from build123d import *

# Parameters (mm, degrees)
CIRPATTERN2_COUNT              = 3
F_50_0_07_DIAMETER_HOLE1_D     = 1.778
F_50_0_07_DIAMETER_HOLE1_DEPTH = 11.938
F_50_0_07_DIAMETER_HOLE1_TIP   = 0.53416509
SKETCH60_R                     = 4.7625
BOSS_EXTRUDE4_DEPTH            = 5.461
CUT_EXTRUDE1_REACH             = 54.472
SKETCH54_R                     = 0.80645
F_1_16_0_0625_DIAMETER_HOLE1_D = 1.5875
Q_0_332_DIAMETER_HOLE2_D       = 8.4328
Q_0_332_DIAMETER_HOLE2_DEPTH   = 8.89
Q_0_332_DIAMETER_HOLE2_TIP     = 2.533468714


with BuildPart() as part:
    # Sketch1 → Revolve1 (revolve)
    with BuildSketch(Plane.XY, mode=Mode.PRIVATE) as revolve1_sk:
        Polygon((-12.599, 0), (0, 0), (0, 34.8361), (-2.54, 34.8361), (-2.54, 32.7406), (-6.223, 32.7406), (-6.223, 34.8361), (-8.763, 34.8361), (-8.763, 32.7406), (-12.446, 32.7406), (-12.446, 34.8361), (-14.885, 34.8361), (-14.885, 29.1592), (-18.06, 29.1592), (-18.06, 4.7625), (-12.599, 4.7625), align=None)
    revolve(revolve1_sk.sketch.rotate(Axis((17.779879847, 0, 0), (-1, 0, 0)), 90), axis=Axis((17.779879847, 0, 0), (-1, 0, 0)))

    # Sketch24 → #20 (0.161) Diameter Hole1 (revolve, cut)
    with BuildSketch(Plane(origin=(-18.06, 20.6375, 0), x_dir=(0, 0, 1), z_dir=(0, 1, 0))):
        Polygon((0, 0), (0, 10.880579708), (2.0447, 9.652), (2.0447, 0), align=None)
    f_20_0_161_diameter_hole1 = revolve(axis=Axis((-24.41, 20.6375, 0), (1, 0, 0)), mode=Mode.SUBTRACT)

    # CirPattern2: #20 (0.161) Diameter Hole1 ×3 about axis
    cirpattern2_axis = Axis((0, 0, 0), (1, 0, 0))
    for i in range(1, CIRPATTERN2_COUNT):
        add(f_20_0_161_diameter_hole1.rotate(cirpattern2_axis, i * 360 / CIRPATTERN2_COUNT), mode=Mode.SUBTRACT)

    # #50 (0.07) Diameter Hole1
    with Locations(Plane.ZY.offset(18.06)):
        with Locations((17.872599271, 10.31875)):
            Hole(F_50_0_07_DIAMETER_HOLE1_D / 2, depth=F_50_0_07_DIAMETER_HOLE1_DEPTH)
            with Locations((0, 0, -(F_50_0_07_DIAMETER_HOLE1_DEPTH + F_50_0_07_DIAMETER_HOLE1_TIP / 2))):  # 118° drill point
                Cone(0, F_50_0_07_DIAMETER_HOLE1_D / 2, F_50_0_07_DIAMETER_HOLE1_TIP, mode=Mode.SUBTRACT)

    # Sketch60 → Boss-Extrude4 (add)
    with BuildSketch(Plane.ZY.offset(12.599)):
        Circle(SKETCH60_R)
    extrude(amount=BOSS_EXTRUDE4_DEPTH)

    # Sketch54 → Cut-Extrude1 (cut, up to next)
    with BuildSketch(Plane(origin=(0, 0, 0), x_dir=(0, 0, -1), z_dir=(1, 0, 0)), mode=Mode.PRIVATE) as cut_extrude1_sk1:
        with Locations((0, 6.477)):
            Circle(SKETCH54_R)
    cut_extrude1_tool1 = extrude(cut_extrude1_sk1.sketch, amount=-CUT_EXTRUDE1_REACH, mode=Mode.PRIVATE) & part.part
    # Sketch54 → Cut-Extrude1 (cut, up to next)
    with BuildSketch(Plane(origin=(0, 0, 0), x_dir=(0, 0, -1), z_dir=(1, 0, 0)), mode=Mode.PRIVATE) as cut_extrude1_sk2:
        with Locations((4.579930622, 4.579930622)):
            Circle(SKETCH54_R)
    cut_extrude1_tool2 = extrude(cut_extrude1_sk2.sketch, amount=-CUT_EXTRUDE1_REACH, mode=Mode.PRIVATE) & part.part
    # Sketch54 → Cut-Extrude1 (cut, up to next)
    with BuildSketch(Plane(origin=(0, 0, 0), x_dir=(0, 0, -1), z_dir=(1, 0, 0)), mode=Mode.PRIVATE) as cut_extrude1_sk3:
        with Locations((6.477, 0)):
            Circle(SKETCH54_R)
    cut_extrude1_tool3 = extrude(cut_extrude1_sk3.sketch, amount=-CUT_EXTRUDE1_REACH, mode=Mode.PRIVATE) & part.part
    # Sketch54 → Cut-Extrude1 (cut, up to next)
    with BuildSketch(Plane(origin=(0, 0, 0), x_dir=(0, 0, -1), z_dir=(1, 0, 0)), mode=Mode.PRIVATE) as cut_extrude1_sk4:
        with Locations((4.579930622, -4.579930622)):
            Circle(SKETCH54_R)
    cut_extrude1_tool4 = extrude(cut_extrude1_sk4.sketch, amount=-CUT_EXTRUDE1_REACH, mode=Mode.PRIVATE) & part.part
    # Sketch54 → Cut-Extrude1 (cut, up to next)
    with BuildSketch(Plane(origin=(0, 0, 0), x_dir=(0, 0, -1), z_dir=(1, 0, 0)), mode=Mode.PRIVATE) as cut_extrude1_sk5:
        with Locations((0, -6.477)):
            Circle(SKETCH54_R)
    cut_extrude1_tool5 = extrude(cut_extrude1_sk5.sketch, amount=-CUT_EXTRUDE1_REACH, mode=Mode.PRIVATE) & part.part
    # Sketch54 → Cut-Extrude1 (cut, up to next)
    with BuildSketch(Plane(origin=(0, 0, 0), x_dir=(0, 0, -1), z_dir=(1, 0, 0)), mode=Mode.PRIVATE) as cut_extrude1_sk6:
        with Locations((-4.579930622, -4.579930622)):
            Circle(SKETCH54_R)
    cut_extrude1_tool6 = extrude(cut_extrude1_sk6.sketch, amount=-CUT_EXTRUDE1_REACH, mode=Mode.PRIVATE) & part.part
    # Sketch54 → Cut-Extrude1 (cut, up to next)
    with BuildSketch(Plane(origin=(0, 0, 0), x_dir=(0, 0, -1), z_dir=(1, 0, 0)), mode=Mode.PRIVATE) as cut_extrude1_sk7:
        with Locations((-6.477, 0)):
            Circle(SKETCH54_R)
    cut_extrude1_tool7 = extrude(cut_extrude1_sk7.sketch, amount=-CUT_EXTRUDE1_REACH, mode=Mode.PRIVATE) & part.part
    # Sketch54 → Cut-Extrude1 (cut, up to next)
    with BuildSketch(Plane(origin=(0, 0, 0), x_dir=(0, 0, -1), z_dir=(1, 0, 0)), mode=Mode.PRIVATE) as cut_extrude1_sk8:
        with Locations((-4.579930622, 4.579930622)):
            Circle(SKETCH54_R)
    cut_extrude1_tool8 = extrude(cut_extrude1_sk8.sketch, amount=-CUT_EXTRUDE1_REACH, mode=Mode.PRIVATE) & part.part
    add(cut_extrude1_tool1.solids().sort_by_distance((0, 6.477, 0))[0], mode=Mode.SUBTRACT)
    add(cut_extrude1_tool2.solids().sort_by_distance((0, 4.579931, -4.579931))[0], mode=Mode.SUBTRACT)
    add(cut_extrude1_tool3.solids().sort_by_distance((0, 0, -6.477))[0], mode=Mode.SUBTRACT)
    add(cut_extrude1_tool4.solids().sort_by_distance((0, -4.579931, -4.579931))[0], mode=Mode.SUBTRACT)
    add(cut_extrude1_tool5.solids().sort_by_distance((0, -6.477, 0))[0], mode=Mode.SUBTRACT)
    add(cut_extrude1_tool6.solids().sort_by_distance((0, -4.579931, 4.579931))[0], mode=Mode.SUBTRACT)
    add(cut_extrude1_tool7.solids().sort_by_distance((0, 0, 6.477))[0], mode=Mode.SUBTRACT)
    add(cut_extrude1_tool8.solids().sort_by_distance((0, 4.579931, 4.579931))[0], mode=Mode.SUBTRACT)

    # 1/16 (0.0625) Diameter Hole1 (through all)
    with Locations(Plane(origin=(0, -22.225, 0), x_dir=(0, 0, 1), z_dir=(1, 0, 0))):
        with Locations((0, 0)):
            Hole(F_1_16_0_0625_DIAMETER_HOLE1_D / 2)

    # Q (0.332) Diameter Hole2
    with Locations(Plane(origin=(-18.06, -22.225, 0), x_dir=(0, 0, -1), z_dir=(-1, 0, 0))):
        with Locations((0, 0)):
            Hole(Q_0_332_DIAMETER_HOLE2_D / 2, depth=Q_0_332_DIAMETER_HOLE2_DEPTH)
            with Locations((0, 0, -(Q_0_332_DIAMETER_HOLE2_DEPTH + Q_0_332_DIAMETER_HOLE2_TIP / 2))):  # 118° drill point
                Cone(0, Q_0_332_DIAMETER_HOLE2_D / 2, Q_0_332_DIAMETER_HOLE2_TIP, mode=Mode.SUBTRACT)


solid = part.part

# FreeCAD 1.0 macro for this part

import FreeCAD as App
import Part
import Sketcher

V = App.Vector
Q = App.Units.Quantity

doc = App.newDocument("Part")
body = doc.addObject("PartDesign::Body", "Body")

sketch1 = body.newObject("Sketcher::SketchObject", "Sketch")
sketch1.AttachmentSupport = (doc.getObject("XY_Plane"), [""])
sketch1.MapMode = "FlatFace"
sketch1.addGeometry(Part.LineSegment(V(-12.6, 0, 0), V(0, 0, 0)), False)
sketch1.addGeometry(Part.LineSegment(V(0, 0, 0), V(0, 34.8, 0)), False)
sketch1.addGeometry(Part.LineSegment(V(0, 34.8, 0), V(-2.5, 34.8, 0)), False)
sketch1.addGeometry(Part.LineSegment(V(-2.5, 34.8, 0), V(-2.5, 32.7, 0)), False)
sketch1.addGeometry(Part.LineSegment(V(-2.5, 32.7, 0), V(-6.2, 32.7, 0)), False)
sketch1.addGeometry(Part.LineSegment(V(-6.2, 32.7, 0), V(-6.2, 34.8, 0)), False)
sketch1.addGeometry(Part.LineSegment(V(-6.2, 34.8, 0), V(-8.8, 34.8, 0)), False)
sketch1.addGeometry(Part.LineSegment(V(-8.8, 34.8, 0), V(-8.8, 32.7, 0)), False)
sketch1.addGeometry(Part.LineSegment(V(-8.8, 32.7, 0), V(-12.4, 32.7, 0)), False)
sketch1.addGeometry(Part.LineSegment(V(-12.4, 32.7, 0), V(-12.4, 34.8, 0)), False)
sketch1.addGeometry(Part.LineSegment(V(-12.4, 34.8, 0), V(-14.9, 34.8, 0)), False)
sketch1.addGeometry(Part.LineSegment(V(-14.9, 34.8, 0), V(-14.9, 29.2, 0)), False)
sketch1.addGeometry(Part.LineSegment(V(-14.9, 29.2, 0), V(-18.1, 29.2, 0)), False)
sketch1.addGeometry(Part.LineSegment(V(-18.1, 29.2, 0), V(-18.1, 4.8, 0)), False)
sketch1.addGeometry(Part.LineSegment(V(-18.1, 4.8, 0), V(-12.6, 4.8, 0)), False)
sketch1.addGeometry(Part.LineSegment(V(-12.6, 4.8, 0), V(-12.6, 0, 0)), False)
sketch1.addConstraint(Sketcher.Constraint("Coincident", 0, 2, 1, 1))
sketch1.addConstraint(Sketcher.Constraint("Coincident", 1, 2, 2, 1))
sketch1.addConstraint(Sketcher.Constraint("Coincident", 2, 2, 3, 1))
sketch1.addConstraint(Sketcher.Constraint("Coincident", 3, 2, 4, 1))
sketch1.addConstraint(Sketcher.Constraint("Coincident", 4, 2, 5, 1))
sketch1.addConstraint(Sketcher.Constraint("Coincident", 5, 2, 6, 1))
sketch1.addConstraint(Sketcher.Constraint("Coincident", 6, 2, 7, 1))
sketch1.addConstraint(Sketcher.Constraint("Coincident", 7, 2, 8, 1))
sketch1.addConstraint(Sketcher.Constraint("Coincident", 8, 2, 9, 1))
sketch1.addConstraint(Sketcher.Constraint("Coincident", 9, 2, 10, 1))
sketch1.addConstraint(Sketcher.Constraint("Coincident", 10, 2, 11, 1))
sketch1.addConstraint(Sketcher.Constraint("Coincident", 11, 2, 12, 1))
sketch1.addConstraint(Sketcher.Constraint("Coincident", 12, 2, 13, 1))
sketch1.addConstraint(Sketcher.Constraint("Coincident", 13, 2, 14, 1))
sketch1.addConstraint(Sketcher.Constraint("Coincident", 14, 2, 15, 1))
sketch1.addConstraint(Sketcher.Constraint("Coincident", 15, 2, 0, 1))
sketch1.addConstraint(Sketcher.Constraint("Horizontal", 0))
sketch1.addConstraint(Sketcher.Constraint("Vertical", 1))
sketch1.addConstraint(Sketcher.Constraint("Horizontal", 2))
sketch1.addConstraint(Sketcher.Constraint("Vertical", 3))
sketch1.addConstraint(Sketcher.Constraint("Horizontal", 4))
sketch1.addConstraint(Sketcher.Constraint("Vertical", 5))
sketch1.addConstraint(Sketcher.Constraint("Horizontal", 6))
sketch1.addConstraint(Sketcher.Constraint("Vertical", 7))
sketch1.addConstraint(Sketcher.Constraint("Horizontal", 8))
sketch1.addConstraint(Sketcher.Constraint("Vertical", 9))
sketch1.addConstraint(Sketcher.Constraint("Horizontal", 10))
sketch1.addConstraint(Sketcher.Constraint("Vertical", 11))
sketch1.addConstraint(Sketcher.Constraint("Horizontal", 12))
sketch1.addConstraint(Sketcher.Constraint("Vertical", 13))
sketch1.addConstraint(Sketcher.Constraint("Horizontal", 14))
sketch1.addConstraint(Sketcher.Constraint("Vertical", 15))
sketch1.addConstraint(Sketcher.Constraint("Coincident", 0, 2, -1, 1))
sketch1.addConstraint(Sketcher.Constraint("Horizontal", 2, 2, 5, 2))
sketch1.addConstraint(Sketcher.Constraint("Horizontal", 4, 2, 7, 2))
sketch1.addConstraint(Sketcher.Constraint("Horizontal", 6, 2, 9, 2))
sketch1.addConstraint(Sketcher.Constraint("Equal", 2, 6))
sketch1.addConstraint(Sketcher.Constraint("Equal", 4, 8))
sketch1.addConstraint(Sketcher.Constraint("DistanceX", 2, 2, 2, 1, Q("0.1 in")))
sketch1.addConstraint(Sketcher.Constraint("DistanceX", 4, 2, 4, 1, Q("0.145 in")))
sketch1.addConstraint(Sketcher.Constraint("DistanceX", 12, 2, 12, 1, Q("0.125 in")))
sketch1.addConstraint(Sketcher.Constraint("DistanceX", 14, 1, 14, 2, Q("0.215 in")))
sketch1.addConstraint(Sketcher.Constraint("DistanceY", 15, 2, 15, 1, Q("0.1875 in")))
sketch1.addConstraint(Sketcher.Constraint("DistanceY", 1, 1, 1, 2, Q("1.3715 in")))
sketch1.addConstraint(Sketcher.Constraint("DistanceY", 3, 2, 3, 1, Q("0.0825 in")))
sketch1.addConstraint(Sketcher.Constraint("DistanceY", 11, 2, 11, 1, Q("0.2235 in")))
sketch1.addConstraint(Sketcher.Constraint("DistanceX", 0, 1, 0, 2, Q("12.599 mm")))
revolution = body.newObject("PartDesign::Revolution", "Revolution")
revolution.Profile = sketch1
revolution.ReferenceAxis = (sketch1, ["H_Axis"])
revolution.Angle = 360

sketch2 = body.newObject("Sketcher::SketchObject", "Sketch001")
sketch2.AttachmentSupport = (doc.getObject("XZ_Plane"), [""])
sketch2.MapMode = "FlatFace"
sketch2.AttachmentOffset = App.Placement(V(0, 0, -0.8125 * 25.4), App.Rotation())
sketch2.addGeometry(Part.LineSegment(V(-7.2, 0, 0), V(-18.1, 0, 0)), False)
sketch2.addGeometry(Part.LineSegment(V(-18.1, 0, 0), V(-18.1, 2, 0)), False)
sketch2.addGeometry(Part.LineSegment(V(-18.1, 2, 0), V(-8.4, 2, 0)), False)
sketch2.addGeometry(Part.LineSegment(V(-8.4, 2, 0), V(-7.2, 0, 0)), False)
sketch2.addConstraint(Sketcher.Constraint("Coincident", 0, 2, 1, 1))
sketch2.addConstraint(Sketcher.Constraint("Coincident", 1, 2, 2, 1))
sketch2.addConstraint(Sketcher.Constraint("Coincident", 2, 2, 3, 1))
sketch2.addConstraint(Sketcher.Constraint("Coincident", 3, 2, 0, 1))
sketch2.addConstraint(Sketcher.Constraint("Horizontal", 0))
sketch2.addConstraint(Sketcher.Constraint("Vertical", 1))
sketch2.addConstraint(Sketcher.Constraint("Horizontal", 2))
sketch2.addConstraint(Sketcher.Constraint("PointOnObject", 0, 2, -1))
sketch2.addConstraint(Sketcher.Constraint("Angle", 3, Q("-59 deg")))
sketch2.addConstraint(Sketcher.Constraint("DistanceX", 2, 1, 2, 2, Q("0.38 in")))
sketch2.addConstraint(Sketcher.Constraint("DistanceY", 1, 1, 1, 2, Q("0.0805 in")))
sketch2.addConstraint(Sketcher.Constraint("DistanceX", 0, 2, -1, 1, Q("18.06 mm")))
groove = body.newObject("PartDesign::Groove", "Groove")
groove.Profile = sketch2
groove.ReferenceAxis = (sketch2, ["H_Axis"])
groove.Angle = 360
doc.recompute()

polarpattern = body.newObject("PartDesign::PolarPattern", "PolarPattern")
polarpattern.Originals = [groove]
polarpattern.Axis = (doc.getObject("X_Axis"), [""])
polarpattern.Angle = 360
polarpattern.Occurrences = 3
body.Tip = polarpattern

sketch3 = body.newObject("Sketcher::SketchObject", "Sketch002")
sketch3.AttachmentSupport = (doc.getObject("YZ_Plane"), [""])
sketch3.MapMode = "FlatFace"
sketch3.AttachmentOffset = App.Placement(V(0, 0, -18.06), App.Rotation())
sketch3.addGeometry(Part.Circle(V(10.3, 17.9, 0), V(0, 0, 1), 0.9), False)
sketch3.addConstraint(Sketcher.Constraint("Diameter", 0, Q("0.07 in")))
sketch3.addConstraint(Sketcher.Constraint("DistanceX", -1, 1, 0, 3, Q("0.40625 in")))
sketch3.addConstraint(Sketcher.Constraint("DistanceY", -1, 1, 0, 3, Q("17.872599 mm")))
doc.recompute()
hole = body.newObject("PartDesign::Hole", "Hole")
hole.Profile = sketch3
hole.ThreadType = "None"
hole.Diameter = Q("0.07 in")
hole.DepthType = "Dimension"
hole.Depth = Q("0.47 in")
hole.DrillPoint = "Angled"
hole.DrillPointAngle = 118
hole.Reversed = True

sketch4 = body.newObject("Sketcher::SketchObject", "Sketch003")
sketch4.AttachmentSupport = (doc.getObject("YZ_Plane"), [""])
sketch4.MapMode = "FlatFace"
sketch4.AttachmentOffset = App.Placement(V(0, 0, -12.599), App.Rotation())
sketch4.addGeometry(Part.Circle(V(0, 0, 0), V(0, 0, 1), 4.8), False)
sketch4.addConstraint(Sketcher.Constraint("Coincident", 0, 3, -1, 1))
sketch4.addConstraint(Sketcher.Constraint("Diameter", 0, Q("0.375 in")))
pad1 = body.newObject("PartDesign::Pad", "Pad")
pad1.Profile = sketch4
pad1.Length = Q("0.215 in")
pad1.Reversed = True

sketch5 = body.newObject("Sketcher::SketchObject", "Sketch004")
sketch5.AttachmentSupport = (doc.getObject("YZ_Plane"), [""])
sketch5.MapMode = "FlatFace"
sketch5.addGeometry(Part.Circle(V(6.5, 0, 0), V(0, 0, 1), 0.8), False)
sketch5.addConstraint(Sketcher.Constraint("PointOnObject", 0, 3, -1))
sketch5.addConstraint(Sketcher.Constraint("Diameter", 0, Q("0.0635 in")))
sketch5.addConstraint(Sketcher.Constraint("DistanceX", -1, 1, 0, 3, Q("0.255 in")))
pocket1 = body.newObject("PartDesign::Pocket", "Pocket")
pocket1.Profile = sketch5
pocket1.Type = "UpToFirst"

sketch6 = body.newObject("Sketcher::SketchObject", "Sketch005")
sketch6.AttachmentSupport = (doc.getObject("YZ_Plane"), [""])
sketch6.MapMode = "FlatFace"
sketch6.addGeometry(Part.Circle(V(4.6, -4.6, 0), V(0, 0, 1), 0.8), False)
sketch6.addConstraint(Sketcher.Constraint("Diameter", 0, Q("0.0635 in")))
sketch6.addConstraint(Sketcher.Constraint("DistanceX", -1, 1, 0, 3, Q("4.579931 mm")))
sketch6.addConstraint(Sketcher.Constraint("DistanceY", 0, 3, -1, 1, Q("4.579931 mm")))
pocket2 = body.newObject("PartDesign::Pocket", "Pocket001")
pocket2.Profile = sketch6
pocket2.Type = "UpToFirst"

sketch7 = body.newObject("Sketcher::SketchObject", "Sketch006")
sketch7.AttachmentSupport = (doc.getObject("YZ_Plane"), [""])
sketch7.MapMode = "FlatFace"
sketch7.addGeometry(Part.Circle(V(0, -6.5, 0), V(0, 0, 1), 0.8), False)
sketch7.addConstraint(Sketcher.Constraint("PointOnObject", 0, 3, -2))
sketch7.addConstraint(Sketcher.Constraint("Diameter", 0, Q("0.0635 in")))
sketch7.addConstraint(Sketcher.Constraint("DistanceY", 0, 3, -1, 1, Q("0.255 in")))
pocket3 = body.newObject("PartDesign::Pocket", "Pocket002")
pocket3.Profile = sketch7
pocket3.Type = "UpToFirst"

sketch8 = body.newObject("Sketcher::SketchObject", "Sketch007")
sketch8.AttachmentSupport = (doc.getObject("YZ_Plane"), [""])
sketch8.MapMode = "FlatFace"
sketch8.addGeometry(Part.Circle(V(-4.6, -4.6, 0), V(0, 0, 1), 0.8), False)
sketch8.addConstraint(Sketcher.Constraint("Diameter", 0, Q("0.0635 in")))
sketch8.addConstraint(Sketcher.Constraint("DistanceX", 0, 3, -1, 1, Q("4.579931 mm")))
sketch8.addConstraint(Sketcher.Constraint("DistanceY", 0, 3, -1, 1, Q("4.579931 mm")))
pocket4 = body.newObject("PartDesign::Pocket", "Pocket003")
pocket4.Profile = sketch8
pocket4.Type = "UpToFirst"

sketch9 = body.newObject("Sketcher::SketchObject", "Sketch008")
sketch9.AttachmentSupport = (doc.getObject("YZ_Plane"), [""])
sketch9.MapMode = "FlatFace"
sketch9.addGeometry(Part.Circle(V(-6.5, 0, 0), V(0, 0, 1), 0.8), False)
sketch9.addConstraint(Sketcher.Constraint("PointOnObject", 0, 3, -1))
sketch9.addConstraint(Sketcher.Constraint("Diameter", 0, Q("0.0635 in")))
sketch9.addConstraint(Sketcher.Constraint("DistanceX", 0, 3, -1, 1, Q("0.255 in")))
pocket5 = body.newObject("PartDesign::Pocket", "Pocket004")
pocket5.Profile = sketch9
pocket5.Type = "UpToFirst"

sketch10 = body.newObject("Sketcher::SketchObject", "Sketch009")
sketch10.AttachmentSupport = (doc.getObject("YZ_Plane"), [""])
sketch10.MapMode = "FlatFace"
sketch10.addGeometry(Part.Circle(V(-4.6, 4.6, 0), V(0, 0, 1), 0.8), False)
sketch10.addConstraint(Sketcher.Constraint("Diameter", 0, Q("0.0635 in")))
sketch10.addConstraint(Sketcher.Constraint("DistanceX", 0, 3, -1, 1, Q("4.579931 mm")))
sketch10.addConstraint(Sketcher.Constraint("DistanceY", -1, 1, 0, 3, Q("4.579931 mm")))
pocket6 = body.newObject("PartDesign::Pocket", "Pocket005")
pocket6.Profile = sketch10
pocket6.Type = "UpToFirst"

sketch11 = body.newObject("Sketcher::SketchObject", "Sketch010")
sketch11.AttachmentSupport = (doc.getObject("YZ_Plane"), [""])
sketch11.MapMode = "FlatFace"
sketch11.addGeometry(Part.Circle(V(0, 6.5, 0), V(0, 0, 1), 0.8), False)
sketch11.addConstraint(Sketcher.Constraint("PointOnObject", 0, 3, -2))
sketch11.addConstraint(Sketcher.Constraint("Diameter", 0, Q("0.0635 in")))
sketch11.addConstraint(Sketcher.Constraint("DistanceY", -1, 1, 0, 3, Q("0.255 in")))
pocket7 = body.newObject("PartDesign::Pocket", "Pocket006")
pocket7.Profile = sketch11
pocket7.Type = "UpToFirst"

sketch12 = body.newObject("Sketcher::SketchObject", "Sketch011")
sketch12.AttachmentSupport = (doc.getObject("YZ_Plane"), [""])
sketch12.MapMode = "FlatFace"
sketch12.addGeometry(Part.Circle(V(4.6, 4.6, 0), V(0, 0, 1), 0.8), False)
sketch12.addConstraint(Sketcher.Constraint("Diameter", 0, Q("0.0635 in")))
sketch12.addConstraint(Sketcher.Constraint("DistanceX", -1, 1, 0, 3, Q("4.579931 mm")))
sketch12.addConstraint(Sketcher.Constraint("DistanceY", -1, 1, 0, 3, Q("4.579931 mm")))
pocket8 = body.newObject("PartDesign::Pocket", "Pocket007")
pocket8.Profile = sketch12
pocket8.Type = "UpToFirst"

sketch13 = body.newObject("Sketcher::SketchObject", "Sketch012")
sketch13.AttachmentSupport = (doc.getObject("YZ_Plane"), [""])
sketch13.MapMode = "FlatFace"
sketch13.addGeometry(Part.Circle(V(-22.2, 0, 0), V(0, 0, 1), 0.8), False)
sketch13.addConstraint(Sketcher.Constraint("PointOnObject", 0, 3, -1))
sketch13.addConstraint(Sketcher.Constraint("Diameter", 0, Q("0.0625 in")))
sketch13.addConstraint(Sketcher.Constraint("DistanceX", 0, 3, -1, 1, Q("0.875 in")))
doc.recompute()
hole2 = body.newObject("PartDesign::Hole", "Hole001")
hole2.Profile = sketch13
hole2.ThreadType = "None"
hole2.Diameter = Q("0.0625 in")
hole2.DepthType = "ThroughAll"

sketch14 = body.newObject("Sketcher::SketchObject", "Sketch013")
sketch14.AttachmentSupport = (doc.getObject("YZ_Plane"), [""])
sketch14.MapMode = "FlatFace"
sketch14.AttachmentOffset = App.Placement(V(0, 0, -18.06), App.Rotation())
sketch14.addGeometry(Part.Circle(V(-22.2, 0, 0), V(0, 0, 1), 4.2), False)
sketch14.addConstraint(Sketcher.Constraint("PointOnObject", 0, 3, -1))
sketch14.addConstraint(Sketcher.Constraint("Diameter", 0, Q("0.332 in")))
sketch14.addConstraint(Sketcher.Constraint("DistanceX", 0, 3, -1, 1, Q("0.875 in")))
doc.recompute()
hole3 = body.newObject("PartDesign::Hole", "Hole002")
hole3.Profile = sketch14
hole3.ThreadType = "None"
hole3.Diameter = Q("0.332 in")
hole3.DepthType = "Dimension"
hole3.Depth = Q("0.35 in")
hole3.DrillPoint = "Angled"
hole3.DrillPointAngle = 118
hole3.Reversed = True

doc.recompute()
